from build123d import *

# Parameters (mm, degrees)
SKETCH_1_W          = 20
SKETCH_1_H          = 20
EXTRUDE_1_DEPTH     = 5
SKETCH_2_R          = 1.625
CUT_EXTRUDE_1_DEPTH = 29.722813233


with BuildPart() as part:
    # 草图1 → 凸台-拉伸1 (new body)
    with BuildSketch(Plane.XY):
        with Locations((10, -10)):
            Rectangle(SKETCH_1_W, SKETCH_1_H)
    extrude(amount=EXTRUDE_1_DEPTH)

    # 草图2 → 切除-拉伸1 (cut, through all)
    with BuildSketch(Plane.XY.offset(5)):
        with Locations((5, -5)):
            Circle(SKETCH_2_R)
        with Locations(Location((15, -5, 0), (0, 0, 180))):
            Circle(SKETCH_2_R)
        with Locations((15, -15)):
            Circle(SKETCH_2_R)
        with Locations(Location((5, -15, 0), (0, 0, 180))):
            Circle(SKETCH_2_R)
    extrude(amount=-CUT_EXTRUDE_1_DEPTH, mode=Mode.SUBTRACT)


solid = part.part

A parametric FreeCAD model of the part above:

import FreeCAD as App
import Part
import Sketcher


def add_polygon(sketch, points):
    """Adds a closed chain of lines whose ends are joined by coincident constraints."""
    first, n = sketch.GeometryCount, len(points)
    for a, b in zip(points, points[1:] + points[:1]):
        sketch.addGeometry(Part.LineSegment(App.Vector(*a, 0), App.Vector(*b, 0)), False)
    for i in range(n):
        sketch.addConstraint(Sketcher.Constraint("Coincident", first + i, 2, first + (i + 1) % n, 1))

doc = App.newDocument("Part")
body = doc.addObject("PartDesign::Body", "Body")

# Sketch on XY plane
sketch1 = body.newObject("Sketcher::SketchObject", "Sketch")
sketch1.AttachmentSupport = (doc.getObject("XY_Plane"), [""])
sketch1.MapMode = "FlatFace"
add_polygon(sketch1, [(0, 0), (0, -20), (20, -20), (20, 0)])  # lines 0-3
sketch1.addConstraint([
    Sketcher.Constraint("Vertical", 0),
    Sketcher.Constraint("Horizontal", 1),
    Sketcher.Constraint("Vertical", 2),
    Sketcher.Constraint("Horizontal", 3),
    Sketcher.Constraint("Coincident", 3, 2, -1, 1),
    Sketcher.Constraint("Equal", 3, 0),
    Sketcher.Constraint("DistanceX", 1, 1, 1, 2, 20.0),
])
pad1 = body.newObject("PartDesign::Pad", "Pad")
pad1.Profile = sketch1
pad1.Length = 5

# Sketch on XY plane
sketch2 = body.newObject("Sketcher::SketchObject", "Sketch001")
sketch2.AttachmentSupport = (doc.getObject("XY_Plane"), [""])
sketch2.MapMode = "FlatFace"
sketch2.AttachmentOffset = App.Placement(App.Vector(0, 0, 5), App.Rotation())
sketch2.addGeometry([
    Part.Circle(App.Vector(5, -5, 0), App.Vector(0, 0, 1), 1.6),
    Part.Circle(App.Vector(15, -5, 0), App.Vector(0, 0, 1), 1.6),
    Part.Circle(App.Vector(15, -15, 0), App.Vector(0, 0, 1), 1.6),
    Part.Circle(App.Vector(5, -15, 0), App.Vector(0, 0, 1), 1.6),
], False)
sketch2.addConstraint([
    Sketcher.Constraint("Equal", 0, 1),
    Sketcher.Constraint("Equal", 1, 2),
    Sketcher.Constraint("Equal", 2, 3),
    Sketcher.Constraint("Horizontal", 0, 3, 1, 3),
    Sketcher.Constraint("Horizontal", 2, 3, 3, 3),
    Sketcher.Constraint("Vertical", 1, 3, 2, 3),
    Sketcher.Constraint("Vertical", 0, 3, 3, 3),
    Sketcher.Constraint("Diameter", 0, 3.25),
    Sketcher.Constraint("DistanceX", -1, 1, 0, 3, 5.0),
    Sketcher.Constraint("DistanceY", 0, 3, -1, 1, 5.0),
    Sketcher.Constraint("DistanceX", -1, 1, 1, 3, 15.0),
    Sketcher.Constraint("DistanceY", 2, 3, -1, 1, 15.0),
])
pocket1 = body.newObject("PartDesign::Pocket", "Pocket")
pocket1.Profile = sketch2
pocket1.Type = "ThroughAll"

doc.recompute()
